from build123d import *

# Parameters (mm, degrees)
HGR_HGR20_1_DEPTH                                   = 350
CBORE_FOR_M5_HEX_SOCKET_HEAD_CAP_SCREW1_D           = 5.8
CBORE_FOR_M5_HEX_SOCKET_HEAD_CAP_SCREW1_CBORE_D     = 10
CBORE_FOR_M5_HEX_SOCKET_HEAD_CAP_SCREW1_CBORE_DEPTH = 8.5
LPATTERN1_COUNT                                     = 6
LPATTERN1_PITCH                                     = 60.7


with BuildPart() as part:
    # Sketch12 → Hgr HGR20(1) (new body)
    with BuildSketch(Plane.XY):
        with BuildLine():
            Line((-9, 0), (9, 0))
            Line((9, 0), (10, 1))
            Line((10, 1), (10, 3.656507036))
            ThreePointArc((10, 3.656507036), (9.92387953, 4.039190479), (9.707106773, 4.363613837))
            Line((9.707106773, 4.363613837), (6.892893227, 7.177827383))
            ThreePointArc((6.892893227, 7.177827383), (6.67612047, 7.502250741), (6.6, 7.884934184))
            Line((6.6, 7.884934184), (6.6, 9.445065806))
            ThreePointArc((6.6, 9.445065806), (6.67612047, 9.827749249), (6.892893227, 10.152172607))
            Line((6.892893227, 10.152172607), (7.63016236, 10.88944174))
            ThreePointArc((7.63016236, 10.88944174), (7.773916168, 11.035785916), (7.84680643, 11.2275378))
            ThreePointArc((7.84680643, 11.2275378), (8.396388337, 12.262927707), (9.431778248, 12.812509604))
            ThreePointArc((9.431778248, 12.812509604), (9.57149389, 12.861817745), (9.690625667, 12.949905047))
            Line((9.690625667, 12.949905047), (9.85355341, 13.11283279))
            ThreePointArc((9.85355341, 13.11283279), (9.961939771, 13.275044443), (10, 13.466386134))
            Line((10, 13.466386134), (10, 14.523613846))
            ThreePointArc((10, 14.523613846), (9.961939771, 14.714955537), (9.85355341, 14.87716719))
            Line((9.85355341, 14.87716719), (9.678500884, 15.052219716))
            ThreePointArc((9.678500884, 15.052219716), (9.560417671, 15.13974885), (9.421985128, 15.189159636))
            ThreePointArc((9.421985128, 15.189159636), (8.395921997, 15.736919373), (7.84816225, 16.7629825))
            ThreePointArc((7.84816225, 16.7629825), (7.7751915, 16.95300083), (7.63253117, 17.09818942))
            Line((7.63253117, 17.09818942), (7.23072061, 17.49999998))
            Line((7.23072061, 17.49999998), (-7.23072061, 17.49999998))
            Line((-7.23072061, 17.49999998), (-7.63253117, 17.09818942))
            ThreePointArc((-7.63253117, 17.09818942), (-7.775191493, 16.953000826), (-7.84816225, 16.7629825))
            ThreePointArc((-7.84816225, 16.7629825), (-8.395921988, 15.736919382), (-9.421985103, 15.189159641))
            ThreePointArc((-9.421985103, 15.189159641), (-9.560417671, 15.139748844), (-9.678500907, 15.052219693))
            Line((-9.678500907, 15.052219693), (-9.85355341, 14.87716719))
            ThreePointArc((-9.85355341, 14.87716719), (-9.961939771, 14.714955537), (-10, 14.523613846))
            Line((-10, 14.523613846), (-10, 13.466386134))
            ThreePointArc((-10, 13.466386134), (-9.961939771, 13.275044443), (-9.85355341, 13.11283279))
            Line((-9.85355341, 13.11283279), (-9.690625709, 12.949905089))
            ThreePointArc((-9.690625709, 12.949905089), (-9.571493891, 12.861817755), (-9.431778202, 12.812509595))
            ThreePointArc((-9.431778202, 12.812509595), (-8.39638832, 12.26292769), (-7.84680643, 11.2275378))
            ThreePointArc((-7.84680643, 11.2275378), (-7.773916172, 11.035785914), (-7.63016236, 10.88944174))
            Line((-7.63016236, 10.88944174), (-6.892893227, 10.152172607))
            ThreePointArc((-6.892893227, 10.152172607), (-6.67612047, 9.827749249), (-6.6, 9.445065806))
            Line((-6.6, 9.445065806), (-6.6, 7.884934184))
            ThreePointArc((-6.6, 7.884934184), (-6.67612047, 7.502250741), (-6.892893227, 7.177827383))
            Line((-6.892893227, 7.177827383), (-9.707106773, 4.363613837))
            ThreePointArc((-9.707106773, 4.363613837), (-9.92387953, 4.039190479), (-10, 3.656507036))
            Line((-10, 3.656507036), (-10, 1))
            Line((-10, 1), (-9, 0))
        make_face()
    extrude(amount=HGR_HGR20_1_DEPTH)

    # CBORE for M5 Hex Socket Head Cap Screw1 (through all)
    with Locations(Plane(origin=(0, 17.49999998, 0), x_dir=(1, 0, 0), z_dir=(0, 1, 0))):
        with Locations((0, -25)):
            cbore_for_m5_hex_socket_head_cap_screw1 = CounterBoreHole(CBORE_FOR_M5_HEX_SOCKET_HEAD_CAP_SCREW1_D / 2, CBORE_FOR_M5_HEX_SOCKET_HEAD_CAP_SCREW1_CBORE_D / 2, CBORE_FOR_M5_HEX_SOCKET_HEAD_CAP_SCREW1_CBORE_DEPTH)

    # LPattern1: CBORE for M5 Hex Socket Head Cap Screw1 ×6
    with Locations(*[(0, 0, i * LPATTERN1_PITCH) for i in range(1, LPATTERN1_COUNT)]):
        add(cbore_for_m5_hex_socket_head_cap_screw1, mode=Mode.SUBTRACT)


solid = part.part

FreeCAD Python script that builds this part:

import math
import FreeCAD as App
import Part
import Sketcher

V = App.Vector
Q = App.Units.Quantity

doc = App.newDocument("Part")
body = doc.addObject("PartDesign::Body", "Body")

sketch1 = doc.addObject("Sketcher::SketchObject", "Sketch")
body.addObject(sketch1)
sketch1.AttachmentSupport = (doc.XY_Plane, [""])
sketch1.MapMode = "FlatFace"
sketch1.addGeometry([
    Part.LineSegment(V(-9, 0, 0), V(9, 0, 0)),
    Part.LineSegment(V(9, 0, 0), V(10, 1, 0)),
    Part.LineSegment(V(10, 1, 0), V(10, 3.656507, 0)),
    Part.ArcOfCircle(Part.Circle(V(9, 3.656507, 0), V(0, 0, 1), 1), math.radians(0), math.radians(45)),
    Part.LineSegment(V(9.707107, 4.363614, 0), V(6.892893, 7.177827, 0)),
    Part.ArcOfCircle(Part.Circle(V(7.6, 7.884934, 0), V(0, 0, 1), 1), math.radians(-180), math.radians(-135)),
    Part.LineSegment(V(6.6, 7.884934, 0), V(6.6, 9.445066, 0)),
    Part.ArcOfCircle(Part.Circle(V(7.6, 9.445066, 0), V(0, 0, 1), 1), math.radians(135), math.radians(180)),
    Part.LineSegment(V(6.892893, 10.152173, 0), V(7.630162, 10.889442, 0)),
    Part.ArcOfCircle(Part.Circle(V(7.352929, 11.305545, 0), V(0, 0, 1), 0.5), math.radians(-56.326005), math.radians(-8.975598)),
    Part.ArcOfCircle(Part.Circle(V(9.810602, 10.848714, 0), V(0, 0, 1), 2), math.radians(100.918461), math.radians(169.081539)),
    Part.ArcOfCircle(Part.Circle(V(9.337072, 13.303458, 0), V(0, 0, 1), 0.5), math.radians(-79.08154), math.radians(-45)),
    Part.LineSegment(V(9.690626, 12.949905, 0), V(9.853553, 13.112833, 0)),
    Part.ArcOfCircle(Part.Circle(V(9.5, 13.466386, 0), V(0, 0, 1), 0.5), math.radians(-45), math.radians(0)),
    Part.LineSegment(V(10, 13.466386, 0), V(10, 14.523614, 0)),
    Part.ArcOfCircle(Part.Circle(V(9.5, 14.523614, 0), V(0, 0, 1), 0.5), math.radians(0), math.radians(45)),
    Part.LineSegment(V(9.853553, 14.877167, 0), V(9.678501, 15.05222, 0)),
    Part.ArcOfCircle(Part.Circle(V(9.324948, 14.698666, 0), V(0, 0, 1), 0.5), math.radians(45), math.radians(78.809295)),
    Part.ArcOfCircle(Part.Circle(V(9.810136, 17.151133, 0), V(0, 0, 1), 2), math.radians(-168.809294), math.radians(-101.190705)),
    Part.ArcOfCircle(Part.Circle(V(7.354683, 16.682497, 0), V(0, 0, 1), 0.5), math.radians(9.263263), math.radians(56.241269)),
    Part.LineSegment(V(7.632531, 17.098189, 0), V(7.230721, 17.5, 0)),
    Part.LineSegment(V(7.230721, 17.5, 0), V(-7.230721, 17.5, 0)),
    Part.LineSegment(V(-7.230721, 17.5, 0), V(-7.632531, 17.098189, 0)),
    Part.ArcOfCircle(Part.Circle(V(-7.354683, 16.682497, 0), V(0, 0, 1), 0.5), math.radians(123.758735), math.radians(170.736732)),
    Part.ArcOfCircle(Part.Circle(V(-9.810136, 17.151133, 0), V(0, 0, 1), 2), math.radians(-78.809294), math.radians(-11.190706)),
    Part.ArcOfCircle(Part.Circle(V(-9.324947, 14.698666, 0), V(0, 0, 1), 0.5), math.radians(101.190706), math.radians(135)),
    Part.LineSegment(V(-9.678501, 15.05222, 0), V(-9.853553, 14.877167, 0)),
    Part.ArcOfCircle(Part.Circle(V(-9.5, 14.523614, 0), V(0, 0, 1), 0.5), math.radians(135), math.radians(180)),
    Part.LineSegment(V(-10, 14.523614, 0), V(-10, 13.466386, 0)),
    Part.ArcOfCircle(Part.Circle(V(-9.5, 13.466386, 0), V(0, 0, 1), 0.5), math.radians(-180), math.radians(-135)),
    Part.LineSegment(V(-9.853553, 13.112833, 0), V(-9.690626, 12.949905, 0)),
    Part.ArcOfCircle(Part.Circle(V(-9.337072, 13.303459, 0), V(0, 0, 1), 0.5), math.radians(-135), math.radians(-100.918461)),
    Part.ArcOfCircle(Part.Circle(V(-9.810602, 10.848714, 0), V(0, 0, 1), 2), math.radians(10.918461), math.radians(79.081538)),
    Part.ArcOfCircle(Part.Circle(V(-7.352929, 11.305545, 0), V(0, 0, 1), 0.5), math.radians(-171.024404), math.radians(-123.673993)),
    Part.LineSegment(V(-7.630162, 10.889442, 0), V(-6.892893, 10.152173, 0)),
    Part.ArcOfCircle(Part.Circle(V(-7.6, 9.445066, 0), V(0, 0, 1), 1), math.radians(0), math.radians(45)),
    Part.LineSegment(V(-6.6, 9.445066, 0), V(-6.6, 7.884934, 0)),
    Part.ArcOfCircle(Part.Circle(V(-7.6, 7.884934, 0), V(0, 0, 1), 1), math.radians(-45), math.radians(0)),
    Part.LineSegment(V(-6.892893, 7.177827, 0), V(-9.707107, 4.363614, 0)),
    Part.ArcOfCircle(Part.Circle(V(-9, 3.656507, 0), V(0, 0, 1), 1), math.radians(135), math.radians(180)),
    Part.LineSegment(V(-10, 3.656507, 0), V(-10, 1, 0)),
    Part.LineSegment(V(-10, 1, 0), V(-9, 0, 0)),
], False)
sketch1.addConstraint([
    Sketcher.Constraint("Coincident", 0, 2, 1, 1),
    Sketcher.Constraint("Coincident", 1, 2, 2, 1),
    Sketcher.Constraint("Coincident", 2, 2, 3, 1),
    Sketcher.Constraint("Coincident", 3, 2, 4, 1),
    Sketcher.Constraint("Coincident", 4, 2, 5, 2),
    Sketcher.Constraint("Coincident", 5, 1, 6, 1),
    Sketcher.Constraint("Coincident", 6, 2, 7, 2),
    Sketcher.Constraint("Coincident", 7, 1, 8, 1),
    Sketcher.Constraint("Coincident", 8, 2, 9, 1),
    Sketcher.Constraint("Coincident", 9, 2, 10, 2),
    Sketcher.Constraint("Coincident", 10, 1, 11, 1),
    Sketcher.Constraint("Coincident", 11, 2, 12, 1),
    Sketcher.Constraint("Coincident", 12, 2, 13, 1),
    Sketcher.Constraint("Coincident", 13, 2, 14, 1),
    Sketcher.Constraint("Coincident", 14, 2, 15, 1),
    Sketcher.Constraint("Coincident", 15, 2, 16, 1),
    Sketcher.Constraint("Coincident", 16, 2, 17, 1),
    Sketcher.Constraint("Coincident", 17, 2, 18, 2),
    Sketcher.Constraint("Coincident", 18, 1, 19, 1),
    Sketcher.Constraint("Coincident", 19, 2, 20, 1),
    Sketcher.Constraint("Coincident", 20, 2, 21, 1),
    Sketcher.Constraint("Coincident", 21, 2, 22, 1),
    Sketcher.Constraint("Coincident", 22, 2, 23, 1),
    Sketcher.Constraint("Coincident", 23, 2, 24, 2),
    Sketcher.Constraint("Coincident", 24, 1, 25, 1),
    Sketcher.Constraint("Coincident", 25, 2, 26, 1),
    Sketcher.Constraint("Coincident", 26, 2, 27, 1),
    Sketcher.Constraint("Coincident", 27, 2, 28, 1),
    Sketcher.Constraint("Coincident", 28, 2, 29, 1),
    Sketcher.Constraint("Coincident", 29, 2, 30, 1),
    Sketcher.Constraint("Coincident", 30, 2, 31, 1),
    Sketcher.Constraint("Coincident", 31, 2, 32, 2),
    Sketcher.Constraint("Coincident", 32, 1, 33, 1),
    Sketcher.Constraint("Coincident", 33, 2, 34, 1),
    Sketcher.Constraint("Coincident", 34, 2, 35, 2),
    Sketcher.Constraint("Coincident", 35, 1, 36, 1),
    Sketcher.Constraint("Coincident", 36, 2, 37, 2),
    Sketcher.Constraint("Coincident", 37, 1, 38, 1),
    Sketcher.Constraint("Coincident", 38, 2, 39, 1),
    Sketcher.Constraint("Coincident", 39, 2, 40, 1),
    Sketcher.Constraint("Coincident", 40, 2, 41, 1),
    Sketcher.Constraint("Coincident", 41, 2, 0, 1),
    Sketcher.Constraint("Horizontal", 0),
    Sketcher.Constraint("Vertical", 2),
    Sketcher.Constraint("Vertical", 6),
    Sketcher.Constraint("Vertical", 14),
    Sketcher.Constraint("Horizontal", 21),
    Sketcher.Constraint("Vertical", 28),
    Sketcher.Constraint("Vertical", 36),
    Sketcher.Constraint("Vertical", 40),
    Sketcher.Constraint("PointOnObject", 0, 2, -1),
    Sketcher.Constraint("Radius", 3, Q("1 mm")),
    Sketcher.Constraint("Radius", 5, Q("1 mm")),
    Sketcher.Constraint("Radius", 7, Q("1 mm")),
    Sketcher.Constraint("Radius", 10, Q("2 mm")),
    Sketcher.Constraint("Radius", 18, Q("2 mm")),
    Sketcher.Constraint("Radius", 24, Q("2 mm")),
    Sketcher.Constraint("Radius", 32, Q("2 mm")),
    Sketcher.Constraint("Radius", 35, Q("1 mm")),
    Sketcher.Constraint("Radius", 37, Q("1 mm")),
    Sketcher.Constraint("Radius", 39, Q("1 mm")),
    Sketcher.Constraint("Radius", 9, Q("0.5 mm")),
    Sketcher.Constraint("Radius", 11, Q("0.5 mm")),
    Sketcher.Constraint("Radius", 13, Q("0.5 mm")),
    Sketcher.Constraint("Radius", 15, Q("0.5 mm")),
    Sketcher.Constraint("Radius", 17, Q("0.5 mm")),
    Sketcher.Constraint("Radius", 19, Q("0.5 mm")),
    Sketcher.Constraint("Radius", 23, Q("0.5 mm")),
    Sketcher.Constraint("Radius", 25, Q("0.5 mm")),
    Sketcher.Constraint("Radius", 27, Q("0.5 mm")),
    Sketcher.Constraint("Radius", 29, Q("0.5 mm")),
    Sketcher.Constraint("Radius", 31, Q("0.5 mm")),
    Sketcher.Constraint("Radius", 33, Q("0.5 mm")),
    Sketcher.Constraint("DistanceX", 0, 1, 0, 2, Q("18 mm")),
    Sketcher.Constraint("DistanceX", -1, 1, 3, 3, Q("9 mm")),
    Sketcher.Constraint("DistanceX", 39, 3, -1, 1, Q("9 mm")),
    Sketcher.Constraint("DistanceX", -1, 1, 0, 2, Q("9 mm")),
    Sketcher.Constraint("DistanceY", -1, 1, 1, 2, Q("1 mm")),
    Sketcher.Constraint("DistanceX", -1, 1, 13, 2, Q("10 mm")),
    Sketcher.Constraint("DistanceX", 27, 2, -1, 1, Q("10 mm")),
    Sketcher.Constraint("DistanceY", -1, 1, 40, 2, Q("1 mm")),
    Sketcher.Constraint("DistanceX", -1, 1, 5, 3, Q("7.6 mm")),
    Sketcher.Constraint("DistanceX", 35, 3, -1, 1, Q("7.6 mm")),
    Sketcher.Constraint("DistanceY", -1, 1, 20, 2, Q("17.5 mm")),
    Sketcher.Constraint("Distance", 4, Q("3.979899 mm")),
    Sketcher.Constraint("Distance", 38, Q("3.979899 mm")),
    Sketcher.Constraint("DistanceX", 21, 2, 21, 1, Q("14.461441 mm")),
    Sketcher.Constraint("DistanceY", 6, 1, 6, 2, Q("1.560132 mm")),
    Sketcher.Constraint("DistanceY", 36, 2, 36, 1, Q("1.560132 mm")),
    Sketcher.Constraint("DistanceX", -1, 1, 10, 3, Q("9.810602 mm")),
    Sketcher.Constraint("DistanceX", 32, 3, -1, 1, Q("9.810602 mm")),
    Sketcher.Constraint("DistanceX", -1, 1, 16, 2, Q("9.678501 mm")),
    Sketcher.Constraint("DistanceX", 25, 2, -1, 1, Q("9.678501 mm")),
    Sketcher.Constraint("Distance", 16, Q("0.247562 mm")),
    Sketcher.Constraint("Distance", 26, Q("0.247562 mm")),
    Sketcher.Constraint("DistanceY", 2, 1, 2, 2, Q("2.656507 mm")),
    Sketcher.Constraint("DistanceY", 14, 1, 14, 2, Q("1.057228 mm")),
    Sketcher.Constraint("DistanceY", 28, 2, 28, 1, Q("1.057228 mm")),
    Sketcher.Constraint("DistanceY", 40, 2, 40, 1, Q("2.656507 mm")),
    Sketcher.Constraint("DistanceX", -1, 1, 9, 3, Q("7.352929 mm")),
    Sketcher.Constraint("DistanceY", -1, 1, 11, 3, Q("13.303458 mm")),
    Sketcher.Constraint("DistanceY", -1, 1, 31, 3, Q("13.303459 mm")),
    Sketcher.Constraint("DistanceX", 33, 3, -1, 1, Q("7.352929 mm")),
    Sketcher.Constraint("DistanceY", -1, 1, 8, 2, Q("10.889442 mm")),
    Sketcher.Constraint("DistanceX", -1, 1, 10, 1, Q("9.431778 mm")),
    Sketcher.Constraint("DistanceY", -1, 1, 10, 1, Q("12.81251 mm")),
    Sketcher.Constraint("DistanceY", -1, 1, 16, 2, Q("15.05222 mm")),
    Sketcher.Constraint("DistanceY", -1, 1, 17, 2, Q("15.18916 mm")),
    Sketcher.Constraint("DistanceX", -1, 1, 19, 2, Q("7.632531 mm")),
    Sketcher.Constraint("DistanceY", -1, 1, 19, 2, Q("17.098189 mm")),
    Sketcher.Constraint("DistanceX", -1, 1, 20, 2, Q("7.230721 mm")),
    Sketcher.Constraint("DistanceX", 22, 2, -1, 1, Q("7.632531 mm")),
    Sketcher.Constraint("DistanceY", -1, 1, 22, 2, Q("17.098189 mm")),
    Sketcher.Constraint("DistanceY", -1, 1, 24, 1, Q("15.18916 mm")),
    Sketcher.Constraint("DistanceY", -1, 1, 25, 2, Q("15.05222 mm")),
    Sketcher.Constraint("DistanceX", 31, 2, -1, 1, Q("9.431778 mm")),
    Sketcher.Constraint("DistanceY", -1, 1, 31, 2, Q("12.81251 mm")),
    Sketcher.Constraint("DistanceY", -1, 1, 33, 2, Q("10.889442 mm")),
    Sketcher.Constraint("Distance", 8, Q("1.042656 mm")),
    Sketcher.Constraint("Distance", 12, Q("0.230415 mm")),
    Sketcher.Constraint("Distance", 30, Q("0.230415 mm")),
    Sketcher.Constraint("Distance", 34, Q("1.042656 mm")),
    Sketcher.Constraint("DistanceY", -1, 1, 3, 3, Q("3.656507 mm")),
    Sketcher.Constraint("DistanceY", -1, 1, 5, 3, Q("7.884934 mm")),
    Sketcher.Constraint("DistanceY", -1, 1, 7, 3, Q("9.445066 mm")),
    Sketcher.Constraint("DistanceY", -1, 1, 9, 3, Q("11.305545 mm")),
    Sketcher.Constraint("DistanceY", -1, 1, 13, 3, Q("13.466386 mm")),
    Sketcher.Constraint("DistanceY", -1, 1, 15, 3, Q("14.523614 mm")),
    Sketcher.Constraint("DistanceX", -1, 1, 17, 3, Q("9.324948 mm")),
    Sketcher.Constraint("DistanceX", -1, 1, 18, 3, Q("9.810136 mm")),
    Sketcher.Constraint("DistanceX", -1, 1, 19, 3, Q("7.354683 mm")),
    Sketcher.Constraint("DistanceX", 23, 3, -1, 1, Q("7.354683 mm")),
    Sketcher.Constraint("DistanceX", 24, 3, -1, 1, Q("9.810136 mm")),
    Sketcher.Constraint("DistanceY", -1, 1, 24, 3, Q("17.151133 mm")),
    Sketcher.Constraint("DistanceY", -1, 1, 27, 3, Q("14.523614 mm")),
    Sketcher.Constraint("DistanceY", -1, 1, 29, 3, Q("13.466386 mm")),
    Sketcher.Constraint("DistanceY", -1, 1, 33, 3, Q("11.305545 mm")),
    Sketcher.Constraint("DistanceY", -1, 1, 35, 3, Q("9.445066 mm")),
    Sketcher.Constraint("DistanceY", -1, 1, 37, 3, Q("7.884934 mm")),
    Sketcher.Constraint("DistanceY", -1, 1, 39, 3, Q("3.656507 mm")),
    Sketcher.Constraint("DistanceX", -1, 1, 3, 2, Q("9.707107 mm")),
    Sketcher.Constraint("DistanceY", -1, 1, 5, 1, Q("7.884934 mm")),
    Sketcher.Constraint("DistanceX", -1, 1, 11, 2, Q("9.690626 mm")),
    Sketcher.Constraint("DistanceY", -1, 1, 13, 2, Q("13.466386 mm")),
    Sketcher.Constraint("DistanceY", -1, 1, 27, 2, Q("14.523614 mm")),
    Sketcher.Constraint("DistanceX", 29, 2, -1, 1, Q("9.853553 mm")),
    Sketcher.Constraint("DistanceY", -1, 1, 35, 1, Q("9.445066 mm")),
    Sketcher.Constraint("DistanceX", 37, 1, -1, 1, Q("6.892893 mm")),
])
pad1 = doc.addObject("PartDesign::Pad", "Pad")
body.addObject(pad1)
pad1.Profile = sketch1
pad1.Length = 350

sketch2 = doc.addObject("Sketcher::SketchObject", "Sketch001")
body.addObject(sketch2)
sketch2.AttachmentSupport = (doc.XZ_Plane, [""])
sketch2.MapMode = "FlatFace"
sketch2.AttachmentOffset = App.Placement(V(0, 0, -17.5), App.Rotation())
sketch2.addGeometry(Part.Circle(V(0, 25, 0), V(0, 0, 1), 2.9), False)
sketch2.addConstraint([
    Sketcher.Constraint("PointOnObject", 0, 3, -2),
    Sketcher.Constraint("Diameter", 0, Q("5.8 mm")),
    Sketcher.Constraint("DistanceY", -1, 1, 0, 3, Q("25 mm")),
])
doc.recompute()
hole = doc.addObject("PartDesign::Hole", "Hole")
body.addObject(hole)
hole.Profile = sketch2
hole.ThreadType = "None"
hole.Diameter = 5.8
hole.DepthType = "ThroughAll"
hole.HoleCutType = "Counterbore"
hole.HoleCutDiameter = 10
hole.HoleCutDepth = 8.5
hole.Reversed = True
doc.recompute()

linearpattern = doc.addObject("PartDesign::LinearPattern", "LinearPattern")
body.addObject(linearpattern)
linearpattern.Originals = [hole]
linearpattern.Direction = (doc.Z_Axis, [""])
linearpattern.Mode = "offset"
linearpattern.Offset = 60.7
linearpattern.Occurrences = 6
body.Tip = linearpattern

doc.recompute()
